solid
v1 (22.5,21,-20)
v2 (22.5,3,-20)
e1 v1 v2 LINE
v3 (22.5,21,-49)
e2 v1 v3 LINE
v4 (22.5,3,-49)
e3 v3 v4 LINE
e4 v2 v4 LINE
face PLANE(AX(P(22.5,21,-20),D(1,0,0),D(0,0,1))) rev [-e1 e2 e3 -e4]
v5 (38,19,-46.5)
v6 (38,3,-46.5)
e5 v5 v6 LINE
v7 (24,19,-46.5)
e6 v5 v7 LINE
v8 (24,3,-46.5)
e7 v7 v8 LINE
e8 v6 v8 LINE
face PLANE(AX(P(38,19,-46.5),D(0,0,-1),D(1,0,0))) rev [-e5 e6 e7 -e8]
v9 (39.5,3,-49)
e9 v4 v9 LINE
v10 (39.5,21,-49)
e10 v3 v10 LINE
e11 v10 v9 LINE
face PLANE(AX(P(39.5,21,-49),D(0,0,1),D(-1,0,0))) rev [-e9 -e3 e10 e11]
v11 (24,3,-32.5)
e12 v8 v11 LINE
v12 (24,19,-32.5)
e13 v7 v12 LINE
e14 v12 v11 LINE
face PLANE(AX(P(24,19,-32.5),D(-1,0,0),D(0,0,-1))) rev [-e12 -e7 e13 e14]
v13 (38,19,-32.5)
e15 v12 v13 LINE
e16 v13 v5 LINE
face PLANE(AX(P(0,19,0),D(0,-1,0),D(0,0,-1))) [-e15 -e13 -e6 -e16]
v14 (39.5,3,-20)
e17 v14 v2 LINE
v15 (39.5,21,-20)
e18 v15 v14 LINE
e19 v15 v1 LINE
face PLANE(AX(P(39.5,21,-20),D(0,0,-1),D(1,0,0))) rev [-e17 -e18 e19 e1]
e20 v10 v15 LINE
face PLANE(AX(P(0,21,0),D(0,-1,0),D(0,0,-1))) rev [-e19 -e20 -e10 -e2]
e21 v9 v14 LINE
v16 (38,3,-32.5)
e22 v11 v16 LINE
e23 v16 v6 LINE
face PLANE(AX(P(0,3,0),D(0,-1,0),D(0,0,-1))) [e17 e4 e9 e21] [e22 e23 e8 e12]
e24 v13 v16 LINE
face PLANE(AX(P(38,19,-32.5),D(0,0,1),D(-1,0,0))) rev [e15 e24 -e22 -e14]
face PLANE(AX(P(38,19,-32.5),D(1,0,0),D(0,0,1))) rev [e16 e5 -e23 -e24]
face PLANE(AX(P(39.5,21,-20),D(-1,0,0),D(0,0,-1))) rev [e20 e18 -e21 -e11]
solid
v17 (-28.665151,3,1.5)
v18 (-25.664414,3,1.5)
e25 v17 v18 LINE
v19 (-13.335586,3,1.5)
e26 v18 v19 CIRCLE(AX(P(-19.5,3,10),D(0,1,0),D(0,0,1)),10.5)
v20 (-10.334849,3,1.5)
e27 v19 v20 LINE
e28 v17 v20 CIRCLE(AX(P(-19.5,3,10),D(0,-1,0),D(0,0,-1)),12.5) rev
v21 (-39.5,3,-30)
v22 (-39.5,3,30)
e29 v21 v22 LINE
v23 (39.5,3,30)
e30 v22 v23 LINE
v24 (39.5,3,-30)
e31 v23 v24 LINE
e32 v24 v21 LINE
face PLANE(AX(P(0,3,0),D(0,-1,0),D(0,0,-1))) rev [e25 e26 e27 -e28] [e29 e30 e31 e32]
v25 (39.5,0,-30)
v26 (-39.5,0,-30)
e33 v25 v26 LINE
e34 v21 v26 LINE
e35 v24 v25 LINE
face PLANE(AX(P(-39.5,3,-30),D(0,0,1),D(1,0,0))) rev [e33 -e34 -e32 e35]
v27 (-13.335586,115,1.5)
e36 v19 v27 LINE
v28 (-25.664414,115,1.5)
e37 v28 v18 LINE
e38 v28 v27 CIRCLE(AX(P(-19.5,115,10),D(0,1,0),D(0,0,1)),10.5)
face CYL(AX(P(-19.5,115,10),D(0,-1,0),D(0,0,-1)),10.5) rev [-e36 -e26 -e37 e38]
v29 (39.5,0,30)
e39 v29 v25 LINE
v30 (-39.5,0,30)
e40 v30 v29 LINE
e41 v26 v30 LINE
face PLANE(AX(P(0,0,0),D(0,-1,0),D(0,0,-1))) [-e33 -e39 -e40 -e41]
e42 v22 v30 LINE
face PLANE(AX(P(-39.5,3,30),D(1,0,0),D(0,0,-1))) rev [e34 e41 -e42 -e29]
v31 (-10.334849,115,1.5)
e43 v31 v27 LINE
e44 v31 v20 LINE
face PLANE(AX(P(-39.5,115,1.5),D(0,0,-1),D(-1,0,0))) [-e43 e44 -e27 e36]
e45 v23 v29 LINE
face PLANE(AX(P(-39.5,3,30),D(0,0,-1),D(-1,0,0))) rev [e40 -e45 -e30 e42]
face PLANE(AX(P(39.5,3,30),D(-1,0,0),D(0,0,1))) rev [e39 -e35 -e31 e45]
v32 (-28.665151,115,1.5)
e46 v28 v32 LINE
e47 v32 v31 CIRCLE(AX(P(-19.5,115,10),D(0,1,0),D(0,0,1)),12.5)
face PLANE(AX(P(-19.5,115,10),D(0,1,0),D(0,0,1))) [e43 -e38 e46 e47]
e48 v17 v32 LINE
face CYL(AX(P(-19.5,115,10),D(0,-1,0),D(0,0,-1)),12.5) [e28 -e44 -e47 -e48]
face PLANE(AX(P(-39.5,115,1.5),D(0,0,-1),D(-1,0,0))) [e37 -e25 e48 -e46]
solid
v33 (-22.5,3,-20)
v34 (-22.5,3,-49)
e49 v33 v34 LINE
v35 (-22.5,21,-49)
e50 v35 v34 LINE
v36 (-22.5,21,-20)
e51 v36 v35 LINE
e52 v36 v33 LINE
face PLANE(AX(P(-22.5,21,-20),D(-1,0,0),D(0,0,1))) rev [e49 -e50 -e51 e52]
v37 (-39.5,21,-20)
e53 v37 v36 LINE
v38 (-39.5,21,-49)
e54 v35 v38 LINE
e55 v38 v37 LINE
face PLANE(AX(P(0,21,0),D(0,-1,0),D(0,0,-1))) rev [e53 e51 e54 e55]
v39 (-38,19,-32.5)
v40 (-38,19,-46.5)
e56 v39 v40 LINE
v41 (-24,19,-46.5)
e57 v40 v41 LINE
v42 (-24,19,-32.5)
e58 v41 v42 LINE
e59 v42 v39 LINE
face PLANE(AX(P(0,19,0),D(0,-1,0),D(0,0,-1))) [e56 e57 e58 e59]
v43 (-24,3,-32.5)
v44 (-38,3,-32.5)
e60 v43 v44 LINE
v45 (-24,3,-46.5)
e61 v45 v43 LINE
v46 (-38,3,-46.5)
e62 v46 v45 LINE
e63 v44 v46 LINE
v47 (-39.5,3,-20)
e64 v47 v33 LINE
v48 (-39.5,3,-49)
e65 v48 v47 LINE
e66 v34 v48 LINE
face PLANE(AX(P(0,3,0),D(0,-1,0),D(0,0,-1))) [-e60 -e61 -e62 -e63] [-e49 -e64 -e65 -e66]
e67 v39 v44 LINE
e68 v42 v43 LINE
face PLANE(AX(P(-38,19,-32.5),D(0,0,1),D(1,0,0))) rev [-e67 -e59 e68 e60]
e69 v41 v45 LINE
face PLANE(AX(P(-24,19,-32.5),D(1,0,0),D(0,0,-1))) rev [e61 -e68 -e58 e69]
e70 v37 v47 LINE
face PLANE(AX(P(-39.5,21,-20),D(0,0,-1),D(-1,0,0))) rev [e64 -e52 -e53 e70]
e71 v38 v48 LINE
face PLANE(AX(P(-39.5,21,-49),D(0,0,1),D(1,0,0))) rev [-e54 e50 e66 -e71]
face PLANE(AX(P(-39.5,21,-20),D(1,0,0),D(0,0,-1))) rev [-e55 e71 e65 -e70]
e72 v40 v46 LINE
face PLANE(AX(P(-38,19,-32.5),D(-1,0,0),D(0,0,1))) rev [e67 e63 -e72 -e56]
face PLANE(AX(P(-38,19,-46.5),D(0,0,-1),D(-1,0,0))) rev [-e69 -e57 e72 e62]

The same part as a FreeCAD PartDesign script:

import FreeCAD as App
import Part
import Sketcher
from FreeCAD import Vector
Q = App.Units.Quantity


def add_polygon(sketch, points):
    """Adds a closed chain of lines whose ends are joined by coincident constraints."""
    first, n = sketch.GeometryCount, len(points)
    for a, b in zip(points, points[1:] + points[:1]):
        sketch.addGeometry(Part.LineSegment(App.Vector(*a, 0), App.Vector(*b, 0)), False)
    for i in range(n):
        sketch.addConstraint(Sketcher.Constraint("Coincident", first + i, 2, first + (i + 1) % n, 1))

doc = App.newDocument("Part")
body = doc.addObject("PartDesign::Body", "Body")

sketch1 = doc.addObject("Sketcher::SketchObject", "Sketch")
body.addObject(sketch1)
sketch1.AttachmentSupport = (doc.XZ_Plane, [""])
sketch1.MapMode = "FlatFace"
add_polygon(sketch1, [(-39.5, -30), (-39.5, 30), (39.5, 30), (39.5, -30)])
sketch1.addConstraint(Sketcher.Constraint("Vertical", 0))
sketch1.addConstraint(Sketcher.Constraint("Horizontal", 1))
sketch1.addConstraint(Sketcher.Constraint("Vertical", 2))
sketch1.addConstraint(Sketcher.Constraint("Horizontal", 3))
sketch1.addConstraint(Sketcher.Constraint("Symmetric", 0, 2, 2, 2, -1, 1))
sketch1.addConstraint(Sketcher.Constraint("DistanceX", 1, 1, 1, 2, Q("79 mm")))
sketch1.addConstraint(Sketcher.Constraint("DistanceY", 0, 1, 0, 2, Q("60 mm")))
pad1 = doc.addObject("PartDesign::Pad", "Pad")
body.addObject(pad1)
pad1.Profile = sketch1
pad1.Length = 3
pad1.Reversed = True

sketch2 = doc.addObject("Sketcher::SketchObject", "Sketch001")
body.addObject(sketch2)
sketch2.AttachmentSupport = (doc.XZ_Plane, [""])
sketch2.MapMode = "FlatFace"
sketch2.AttachmentOffset = App.Placement(Vector(0, 0, -3), App.Rotation())
sketch2.addGeometry(Part.Circle(Vector(-19.5, 10, 0), Vector(0, 0, 1), 12.5), False)
sketch2.addConstraint(Sketcher.Constraint("Diameter", 0, Q("25 mm")))
sketch2.addConstraint(Sketcher.Constraint("DistanceY", -1, 1, 0, 3, Q("10 mm")))
sketch2.addConstraint(Sketcher.Constraint("DistanceX", 0, 3, -1, 1, Q("19.5 mm")))
pad2 = doc.addObject("PartDesign::Pad", "Pad001")
body.addObject(pad2)
pad2.Profile = sketch2
pad2.Length = 112
pad2.Reversed = True

sketch3 = doc.addObject("Sketcher::SketchObject", "Sketch002")
body.addObject(sketch3)
sketch3.AttachmentSupport = (doc.XZ_Plane, [""])
sketch3.MapMode = "FlatFace"
sketch3.AttachmentOffset = App.Placement(Vector(0, 0, -3), App.Rotation())
add_polygon(sketch3, [(-39.5, -10), (-39.5, 1.5), (0.5, 1.5), (0.5, -10)])
sketch3.addConstraint(Sketcher.Constraint("Vertical", 0))
sketch3.addConstraint(Sketcher.Constraint("Horizontal", 1))
sketch3.addConstraint(Sketcher.Constraint("Vertical", 2))
sketch3.addConstraint(Sketcher.Constraint("Horizontal", 3))
sketch3.addConstraint(Sketcher.Constraint("DistanceX", 1, 1, 1, 2, Q("40 mm")))
sketch3.addConstraint(Sketcher.Constraint("DistanceY", 0, 1, 0, 2, Q("11.5 mm")))
sketch3.addConstraint(Sketcher.Constraint("DistanceY", 2, 2, -1, 1, Q("10 mm")))
sketch3.addConstraint(Sketcher.Constraint("DistanceX", 0, 2, -1, 1, Q("39.5 mm")))
pocket1 = doc.addObject("PartDesign::Pocket", "Pocket")
body.addObject(pocket1)
pocket1.Profile = sketch3
pocket1.Length = 112

sketch4 = doc.addObject("Sketcher::SketchObject", "Sketch003")
body.addObject(sketch4)
sketch4.AttachmentSupport = (doc.XZ_Plane, [""])
sketch4.MapMode = "FlatFace"
sketch4.AttachmentOffset = App.Placement(Vector(0, 0, -3), App.Rotation())
sketch4.addGeometry(Part.Circle(Vector(-19.5, 10, 0), Vector(0, 0, 1), 10.5), False)
sketch4.addConstraint(Sketcher.Constraint("Diameter", 0, Q("21 mm")))
sketch4.addConstraint(Sketcher.Constraint("DistanceY", -1, 1, 0, 3, Q("10 mm")))
sketch4.addConstraint(Sketcher.Constraint("DistanceX", 0, 3, -1, 1, Q("19.5 mm")))
pocket2 = doc.addObject("PartDesign::Pocket", "Pocket001")
body.addObject(pocket2)
pocket2.Profile = sketch4
pocket2.Length = 112
body2 = doc.addObject("PartDesign::Body", "Body001")

sketch5 = doc.addObject("Sketcher::SketchObject", "Sketch004")
body2.addObject(sketch5)
sketch5.AttachmentSupport = (doc.getObject("XZ_Plane001"), [""])
sketch5.MapMode = "FlatFace"
sketch5.AttachmentOffset = App.Placement(Vector(0, 0, -3), App.Rotation())
add_polygon(sketch5, [(-39.5, -49), (-39.5, -20), (-22.5, -20), (-22.5, -49)])
sketch5.addConstraint(Sketcher.Constraint("Vertical", 0))
sketch5.addConstraint(Sketcher.Constraint("Horizontal", 1))
sketch5.addConstraint(Sketcher.Constraint("Vertical", 2))
sketch5.addConstraint(Sketcher.Constraint("Horizontal", 3))
sketch5.addConstraint(Sketcher.Constraint("DistanceX", 1, 1, 1, 2, Q("17 mm")))
sketch5.addConstraint(Sketcher.Constraint("DistanceY", 0, 1, 0, 2, Q("29 mm")))
sketch5.addConstraint(Sketcher.Constraint("DistanceY", 0, 2, -1, 1, Q("20 mm")))
sketch5.addConstraint(Sketcher.Constraint("DistanceX", 0, 2, -1, 1, Q("39.5 mm")))
pad3 = doc.addObject("PartDesign::Pad", "Pad002")
body2.addObject(pad3)
pad3.Profile = sketch5
pad3.Length = 18
pad3.Reversed = True

sketch6 = doc.addObject("Sketcher::SketchObject", "Sketch005")
body2.addObject(sketch6)
sketch6.AttachmentSupport = (doc.getObject("XZ_Plane001"), [""])
sketch6.MapMode = "FlatFace"
sketch6.AttachmentOffset = App.Placement(Vector(0, 0, -3), App.Rotation())
add_polygon(sketch6, [(-38, -32.5), (-38, -46.5), (-24, -46.5), (-24, -32.5)])
sketch6.addConstraint(Sketcher.Constraint("Vertical", 0))
sketch6.addConstraint(Sketcher.Constraint("Horizontal", 1))
sketch6.addConstraint(Sketcher.Constraint("Vertical", 2))
sketch6.addConstraint(Sketcher.Constraint("Horizontal", 3))
sketch6.addConstraint(Sketcher.Constraint("Equal", 3, 0))
sketch6.addConstraint(Sketcher.Constraint("DistanceX", 1, 1, 1, 2, Q("14 mm")))
sketch6.addConstraint(Sketcher.Constraint("DistanceX", 0, 2, -1, 1, Q("38 mm")))
sketch6.addConstraint(Sketcher.Constraint("DistanceY", 0, 2, -1, 1, Q("46.5 mm")))
pocket3 = doc.addObject("PartDesign::Pocket", "Pocket002")
body2.addObject(pocket3)
pocket3.Profile = sketch6
pocket3.Length = 16
body3 = doc.addObject("PartDesign::Body", "Body002")
doc.recompute()

mirroring = doc.addObject("Part::Mirroring", "Mirroring")
mirroring.Source = body2
mirroring.Base = Vector(0, 0, 0)
mirroring.Normal = Vector(1, 0, 0)
body3.BaseFeature = mirroring
doc.recompute()
mirroring.Visibility = False

doc.recompute()
